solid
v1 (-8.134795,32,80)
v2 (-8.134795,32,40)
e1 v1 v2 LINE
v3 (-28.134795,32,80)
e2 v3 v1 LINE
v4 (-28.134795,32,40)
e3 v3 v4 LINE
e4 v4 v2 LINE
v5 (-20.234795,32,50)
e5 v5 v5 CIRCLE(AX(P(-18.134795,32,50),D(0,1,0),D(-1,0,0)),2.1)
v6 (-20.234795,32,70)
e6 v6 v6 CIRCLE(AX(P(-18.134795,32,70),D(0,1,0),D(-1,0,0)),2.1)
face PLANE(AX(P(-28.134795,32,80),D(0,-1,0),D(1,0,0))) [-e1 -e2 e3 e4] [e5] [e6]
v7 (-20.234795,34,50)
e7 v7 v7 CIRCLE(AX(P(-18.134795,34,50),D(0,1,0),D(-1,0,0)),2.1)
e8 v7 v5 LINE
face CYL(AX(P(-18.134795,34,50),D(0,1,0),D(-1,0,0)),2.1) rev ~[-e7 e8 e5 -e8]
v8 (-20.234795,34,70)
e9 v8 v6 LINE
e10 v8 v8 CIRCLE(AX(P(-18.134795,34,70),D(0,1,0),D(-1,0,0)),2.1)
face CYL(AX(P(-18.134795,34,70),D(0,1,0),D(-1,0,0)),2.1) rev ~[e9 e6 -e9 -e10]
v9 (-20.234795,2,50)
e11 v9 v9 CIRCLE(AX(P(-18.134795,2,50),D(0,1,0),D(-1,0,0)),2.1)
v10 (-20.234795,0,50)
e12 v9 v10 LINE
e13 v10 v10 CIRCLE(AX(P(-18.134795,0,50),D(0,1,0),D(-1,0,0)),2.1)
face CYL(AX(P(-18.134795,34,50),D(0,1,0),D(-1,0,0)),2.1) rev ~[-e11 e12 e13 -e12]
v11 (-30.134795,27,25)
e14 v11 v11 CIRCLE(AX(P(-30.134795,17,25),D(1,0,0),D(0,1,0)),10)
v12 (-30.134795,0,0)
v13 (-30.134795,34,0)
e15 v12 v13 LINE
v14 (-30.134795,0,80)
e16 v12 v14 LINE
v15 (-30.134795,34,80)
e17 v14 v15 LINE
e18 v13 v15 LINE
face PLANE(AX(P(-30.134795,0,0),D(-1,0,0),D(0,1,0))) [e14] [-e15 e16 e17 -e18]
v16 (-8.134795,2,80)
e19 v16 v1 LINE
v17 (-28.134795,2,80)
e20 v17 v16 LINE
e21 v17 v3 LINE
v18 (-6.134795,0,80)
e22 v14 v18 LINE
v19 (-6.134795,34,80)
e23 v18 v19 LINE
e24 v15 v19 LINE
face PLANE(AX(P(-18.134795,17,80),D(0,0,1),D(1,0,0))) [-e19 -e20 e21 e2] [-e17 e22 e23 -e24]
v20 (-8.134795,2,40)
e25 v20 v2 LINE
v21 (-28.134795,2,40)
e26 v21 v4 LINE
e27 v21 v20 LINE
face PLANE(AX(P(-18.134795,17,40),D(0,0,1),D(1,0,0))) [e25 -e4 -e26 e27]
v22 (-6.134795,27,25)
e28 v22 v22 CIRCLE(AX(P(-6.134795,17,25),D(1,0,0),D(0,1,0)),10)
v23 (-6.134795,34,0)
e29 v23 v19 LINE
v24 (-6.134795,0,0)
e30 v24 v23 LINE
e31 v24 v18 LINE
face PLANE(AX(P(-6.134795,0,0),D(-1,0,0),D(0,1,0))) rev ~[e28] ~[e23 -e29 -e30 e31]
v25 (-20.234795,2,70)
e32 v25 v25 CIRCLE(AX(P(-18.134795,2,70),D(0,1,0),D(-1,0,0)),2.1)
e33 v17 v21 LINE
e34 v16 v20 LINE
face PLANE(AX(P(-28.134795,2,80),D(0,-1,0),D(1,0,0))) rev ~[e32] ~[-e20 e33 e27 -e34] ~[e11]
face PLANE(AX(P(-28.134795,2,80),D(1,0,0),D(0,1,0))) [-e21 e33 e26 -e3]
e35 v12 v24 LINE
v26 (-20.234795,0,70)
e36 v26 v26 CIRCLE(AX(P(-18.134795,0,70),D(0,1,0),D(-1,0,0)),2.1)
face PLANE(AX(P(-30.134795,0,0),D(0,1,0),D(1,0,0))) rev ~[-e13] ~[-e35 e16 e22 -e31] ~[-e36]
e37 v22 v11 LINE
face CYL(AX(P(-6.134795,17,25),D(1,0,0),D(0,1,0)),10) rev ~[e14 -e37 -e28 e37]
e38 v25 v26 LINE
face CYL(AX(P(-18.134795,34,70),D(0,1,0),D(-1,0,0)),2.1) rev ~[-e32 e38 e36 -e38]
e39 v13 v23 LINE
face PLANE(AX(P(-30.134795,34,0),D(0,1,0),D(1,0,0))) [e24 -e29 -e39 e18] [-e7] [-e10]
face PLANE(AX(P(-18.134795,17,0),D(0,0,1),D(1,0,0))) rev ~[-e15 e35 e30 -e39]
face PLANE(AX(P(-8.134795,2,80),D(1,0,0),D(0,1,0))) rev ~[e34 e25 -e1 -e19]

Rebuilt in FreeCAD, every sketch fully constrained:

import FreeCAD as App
import Part
import Sketcher

doc = App.newDocument("Part")
params = doc.addObject("Spreadsheet::Sheet", "Params")
for row, (alias, value) in enumerate([
    ("sketch1_width", "24 mm"),
    ("sketch1_height", "34 mm"),
    ("pad1_length", "80 mm"),
    ("sketch2_diameter", "20 mm"),
    ("pocket1_length", "25 mm"),
    ("sketch3_width", "20 mm"),
    ("sketch3_height", "30 mm"),
    ("pocket2_length", "40 mm"),
    ("sketch4_diameter", "4.2 mm"),
    ("pocket3_length", "40 mm"),
], start=1):
    params.set(f"A{row}", alias)
    params.set(f"B{row}", "=" + value)
    params.setAlias(f"B{row}", alias)

body = doc.addObject("PartDesign::Body", "Body")

# Sketch on XY plane
sketch1 = body.newObject("Sketcher::SketchObject", "Sketch")
sketch1.AttachmentSupport = (doc.getObject("XY_Plane"), [""])
sketch1.MapMode = "FlatFace"
sketch1.addGeometry([
    Part.LineSegment(App.Vector(-30, 34, 0), App.Vector(-30, 0, 0)),
    Part.LineSegment(App.Vector(-30, 0, 0), App.Vector(-6, 0, 0)),
    Part.LineSegment(App.Vector(-6, 0, 0), App.Vector(-6, 34, 0)),
    Part.LineSegment(App.Vector(-6, 34, 0), App.Vector(-30, 34, 0)),
], False)
sketch1.addConstraint([
    Sketcher.Constraint("Coincident", 0, 2, 1, 1),
    Sketcher.Constraint("Coincident", 1, 2, 2, 1),
    Sketcher.Constraint("Coincident", 2, 2, 3, 1),
    Sketcher.Constraint("Coincident", 3, 2, 0, 1),
    Sketcher.Constraint("Vertical", 0),
    Sketcher.Constraint("Horizontal", 1),
    Sketcher.Constraint("Vertical", 2),
    Sketcher.Constraint("Horizontal", 3),
    Sketcher.Constraint("PointOnObject", 0, 2, -1),
    Sketcher.Constraint("DistanceX", 1, 1, 1, 2, 24.0),
    Sketcher.Constraint("DistanceY", 0, 2, 0, 1, 34.0),
    Sketcher.Constraint("DistanceX", 0, 2, -1, 1, 30.134795),
])
sketch1.setExpression("Constraints[9]", "Params.sketch1_width")
sketch1.setExpression("Constraints[10]", "Params.sketch1_height")
pad1 = body.newObject("PartDesign::Pad", "Pad")
pad1.Profile = sketch1
pad1.setExpression("Length", "Params.pad1_length")

# Sketch on YZ plane
sketch2 = body.newObject("Sketcher::SketchObject", "Sketch001")
sketch2.AttachmentSupport = (doc.getObject("YZ_Plane"), [""])
sketch2.MapMode = "FlatFace"
sketch2.AttachmentOffset = App.Placement(App.Vector(0, 0, -6.134795), App.Rotation())
sketch2.addGeometry(Part.Circle(App.Vector(17, 25, 0), App.Vector(0, 0, 1), 10), False)
sketch2.addConstraint([
    Sketcher.Constraint("Diameter", 0, 20.0),
    Sketcher.Constraint("DistanceX", -1, 1, 0, 3, 17.0),
    Sketcher.Constraint("DistanceY", -1, 1, 0, 3, 25.0),
])
sketch2.setExpression("Constraints[0]", "Params.sketch2_diameter")
pocket1 = body.newObject("PartDesign::Pocket", "Pocket")
pocket1.Profile = sketch2
pocket1.setExpression("Length", "Params.pocket1_length")

# Sketch on XY plane
sketch3 = body.newObject("Sketcher::SketchObject", "Sketch002")
sketch3.AttachmentSupport = (doc.getObject("XY_Plane"), [""])
sketch3.MapMode = "FlatFace"
sketch3.AttachmentOffset = App.Placement(App.Vector(0, 0, 80), App.Rotation())
sketch3.addGeometry([
    Part.LineSegment(App.Vector(-28, 32, 0), App.Vector(-28, 2, 0)),
    Part.LineSegment(App.Vector(-28, 2, 0), App.Vector(-8, 2, 0)),
    Part.LineSegment(App.Vector(-8, 2, 0), App.Vector(-8, 32, 0)),
    Part.LineSegment(App.Vector(-8, 32, 0), App.Vector(-28, 32, 0)),
], False)
sketch3.addConstraint([
    Sketcher.Constraint("Coincident", 0, 2, 1, 1),
    Sketcher.Constraint("Coincident", 1, 2, 2, 1),
    Sketcher.Constraint("Coincident", 2, 2, 3, 1),
    Sketcher.Constraint("Coincident", 3, 2, 0, 1),
    Sketcher.Constraint("Vertical", 0),
    Sketcher.Constraint("Horizontal", 1),
    Sketcher.Constraint("Vertical", 2),
    Sketcher.Constraint("Horizontal", 3),
    Sketcher.Constraint("DistanceX", 1, 1, 1, 2, 20.0),
    Sketcher.Constraint("DistanceY", 0, 2, 0, 1, 30.0),
    Sketcher.Constraint("DistanceY", -1, 1, 0, 2, 2.0),
    Sketcher.Constraint("DistanceX", 0, 2, -1, 1, 28.134795),
])
sketch3.setExpression("Constraints[8]", "Params.sketch3_width")
sketch3.setExpression("Constraints[9]", "Params.sketch3_height")
pocket2 = body.newObject("PartDesign::Pocket", "Pocket001")
pocket2.Profile = sketch3
pocket2.setExpression("Length", "Params.pocket2_length")

# Sketch on XZ plane
sketch4 = body.newObject("Sketcher::SketchObject", "Sketch003")
sketch4.AttachmentSupport = (doc.getObject("XZ_Plane"), [""])
sketch4.MapMode = "FlatFace"
sketch4.AttachmentOffset = App.Placement(App.Vector(0, 0, -34), App.Rotation())
sketch4.addGeometry([
    Part.Circle(App.Vector(-18.1, 70, 0), App.Vector(0, 0, 1), 2.1),
    Part.Circle(App.Vector(-18.1, 50, 0), App.Vector(0, 0, 1), 2.1),
], False)
sketch4.addConstraint([
    Sketcher.Constraint("Equal", 0, 1),
    Sketcher.Constraint("Vertical", 0, 3, 1, 3),
    Sketcher.Constraint("Diameter", 0, 4.2),
    Sketcher.Constraint("DistanceY", -1, 1, 0, 3, 70.0),
    Sketcher.Constraint("DistanceY", -1, 1, 1, 3, 50.0),
    Sketcher.Constraint("DistanceX", 0, 3, -1, 1, 18.134795),
])
sketch4.setExpression("Constraints[2]", "Params.sketch4_diameter")
pocket3 = body.newObject("PartDesign::Pocket", "Pocket002")
pocket3.Profile = sketch4
pocket3.setExpression("Length", "Params.pocket3_length")
pocket3.Reversed = True

doc.recompute()
